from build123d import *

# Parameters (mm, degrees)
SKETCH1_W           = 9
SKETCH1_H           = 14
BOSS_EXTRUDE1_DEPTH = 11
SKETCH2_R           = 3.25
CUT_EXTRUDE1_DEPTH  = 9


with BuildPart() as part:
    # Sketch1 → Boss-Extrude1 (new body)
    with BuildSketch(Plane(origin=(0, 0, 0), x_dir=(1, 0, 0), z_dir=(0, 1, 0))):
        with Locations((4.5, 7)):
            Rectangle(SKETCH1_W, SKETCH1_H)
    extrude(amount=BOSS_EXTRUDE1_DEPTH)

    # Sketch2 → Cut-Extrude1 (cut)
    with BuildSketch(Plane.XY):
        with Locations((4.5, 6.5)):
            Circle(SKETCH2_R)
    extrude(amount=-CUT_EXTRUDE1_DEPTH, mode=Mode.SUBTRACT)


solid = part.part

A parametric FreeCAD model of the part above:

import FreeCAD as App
import Part
import Sketcher
from FreeCAD import Vector
Q = App.Units.Quantity

doc = App.newDocument("Part")
body = doc.addObject("PartDesign::Body", "Body")

sketch1 = doc.addObject("Sketcher::SketchObject", "Sketch")
body.addObject(sketch1)
sketch1.AttachmentSupport = (doc.XZ_Plane, [""])
sketch1.MapMode = "FlatFace"
sketch1.addGeometry(Part.LineSegment(Vector(0, -14, 0), Vector(0, 0, 0)), False)
sketch1.addGeometry(Part.LineSegment(Vector(0, 0, 0), Vector(9, 0, 0)), False)
sketch1.addGeometry(Part.LineSegment(Vector(9, 0, 0), Vector(9, -14, 0)), False)
sketch1.addGeometry(Part.LineSegment(Vector(9, -14, 0), Vector(0, -14, 0)), False)
sketch1.addConstraint(Sketcher.Constraint("Coincident", 0, 2, 1, 1))
sketch1.addConstraint(Sketcher.Constraint("Coincident", 1, 2, 2, 1))
sketch1.addConstraint(Sketcher.Constraint("Coincident", 2, 2, 3, 1))
sketch1.addConstraint(Sketcher.Constraint("Coincident", 3, 2, 0, 1))
sketch1.addConstraint(Sketcher.Constraint("Vertical", 0))
sketch1.addConstraint(Sketcher.Constraint("Horizontal", 1))
sketch1.addConstraint(Sketcher.Constraint("Vertical", 2))
sketch1.addConstraint(Sketcher.Constraint("Horizontal", 3))
sketch1.addConstraint(Sketcher.Constraint("Coincident", 0, 2, -1, 1))
sketch1.addConstraint(Sketcher.Constraint("DistanceX", 1, 1, 1, 2, Q("9 mm")))
sketch1.addConstraint(Sketcher.Constraint("DistanceY", 0, 1, 0, 2, Q("14 mm")))
pad1 = doc.addObject("PartDesign::Pad", "Pad")
body.addObject(pad1)
pad1.Profile = sketch1
pad1.Length = 11
pad1.Reversed = True

sketch2 = doc.addObject("Sketcher::SketchObject", "Sketch001")
body.addObject(sketch2)
sketch2.AttachmentSupport = (doc.XY_Plane, [""])
sketch2.MapMode = "FlatFace"
sketch2.addGeometry(Part.Circle(Vector(4.5, 6.5, 0), Vector(0, 0, 1), 3.25), False)
sketch2.addConstraint(Sketcher.Constraint("Diameter", 0, Q("6.5 mm")))
sketch2.addConstraint(Sketcher.Constraint("DistanceX", -1, 1, 0, 3, Q("4.5 mm")))
sketch2.addConstraint(Sketcher.Constraint("DistanceY", -1, 1, 0, 3, Q("6.5 mm")))
pocket1 = doc.addObject("PartDesign::Pocket", "Pocket")
body.addObject(pocket1)
pocket1.Profile = sketch2
pocket1.Length = 9

doc.recompute()
